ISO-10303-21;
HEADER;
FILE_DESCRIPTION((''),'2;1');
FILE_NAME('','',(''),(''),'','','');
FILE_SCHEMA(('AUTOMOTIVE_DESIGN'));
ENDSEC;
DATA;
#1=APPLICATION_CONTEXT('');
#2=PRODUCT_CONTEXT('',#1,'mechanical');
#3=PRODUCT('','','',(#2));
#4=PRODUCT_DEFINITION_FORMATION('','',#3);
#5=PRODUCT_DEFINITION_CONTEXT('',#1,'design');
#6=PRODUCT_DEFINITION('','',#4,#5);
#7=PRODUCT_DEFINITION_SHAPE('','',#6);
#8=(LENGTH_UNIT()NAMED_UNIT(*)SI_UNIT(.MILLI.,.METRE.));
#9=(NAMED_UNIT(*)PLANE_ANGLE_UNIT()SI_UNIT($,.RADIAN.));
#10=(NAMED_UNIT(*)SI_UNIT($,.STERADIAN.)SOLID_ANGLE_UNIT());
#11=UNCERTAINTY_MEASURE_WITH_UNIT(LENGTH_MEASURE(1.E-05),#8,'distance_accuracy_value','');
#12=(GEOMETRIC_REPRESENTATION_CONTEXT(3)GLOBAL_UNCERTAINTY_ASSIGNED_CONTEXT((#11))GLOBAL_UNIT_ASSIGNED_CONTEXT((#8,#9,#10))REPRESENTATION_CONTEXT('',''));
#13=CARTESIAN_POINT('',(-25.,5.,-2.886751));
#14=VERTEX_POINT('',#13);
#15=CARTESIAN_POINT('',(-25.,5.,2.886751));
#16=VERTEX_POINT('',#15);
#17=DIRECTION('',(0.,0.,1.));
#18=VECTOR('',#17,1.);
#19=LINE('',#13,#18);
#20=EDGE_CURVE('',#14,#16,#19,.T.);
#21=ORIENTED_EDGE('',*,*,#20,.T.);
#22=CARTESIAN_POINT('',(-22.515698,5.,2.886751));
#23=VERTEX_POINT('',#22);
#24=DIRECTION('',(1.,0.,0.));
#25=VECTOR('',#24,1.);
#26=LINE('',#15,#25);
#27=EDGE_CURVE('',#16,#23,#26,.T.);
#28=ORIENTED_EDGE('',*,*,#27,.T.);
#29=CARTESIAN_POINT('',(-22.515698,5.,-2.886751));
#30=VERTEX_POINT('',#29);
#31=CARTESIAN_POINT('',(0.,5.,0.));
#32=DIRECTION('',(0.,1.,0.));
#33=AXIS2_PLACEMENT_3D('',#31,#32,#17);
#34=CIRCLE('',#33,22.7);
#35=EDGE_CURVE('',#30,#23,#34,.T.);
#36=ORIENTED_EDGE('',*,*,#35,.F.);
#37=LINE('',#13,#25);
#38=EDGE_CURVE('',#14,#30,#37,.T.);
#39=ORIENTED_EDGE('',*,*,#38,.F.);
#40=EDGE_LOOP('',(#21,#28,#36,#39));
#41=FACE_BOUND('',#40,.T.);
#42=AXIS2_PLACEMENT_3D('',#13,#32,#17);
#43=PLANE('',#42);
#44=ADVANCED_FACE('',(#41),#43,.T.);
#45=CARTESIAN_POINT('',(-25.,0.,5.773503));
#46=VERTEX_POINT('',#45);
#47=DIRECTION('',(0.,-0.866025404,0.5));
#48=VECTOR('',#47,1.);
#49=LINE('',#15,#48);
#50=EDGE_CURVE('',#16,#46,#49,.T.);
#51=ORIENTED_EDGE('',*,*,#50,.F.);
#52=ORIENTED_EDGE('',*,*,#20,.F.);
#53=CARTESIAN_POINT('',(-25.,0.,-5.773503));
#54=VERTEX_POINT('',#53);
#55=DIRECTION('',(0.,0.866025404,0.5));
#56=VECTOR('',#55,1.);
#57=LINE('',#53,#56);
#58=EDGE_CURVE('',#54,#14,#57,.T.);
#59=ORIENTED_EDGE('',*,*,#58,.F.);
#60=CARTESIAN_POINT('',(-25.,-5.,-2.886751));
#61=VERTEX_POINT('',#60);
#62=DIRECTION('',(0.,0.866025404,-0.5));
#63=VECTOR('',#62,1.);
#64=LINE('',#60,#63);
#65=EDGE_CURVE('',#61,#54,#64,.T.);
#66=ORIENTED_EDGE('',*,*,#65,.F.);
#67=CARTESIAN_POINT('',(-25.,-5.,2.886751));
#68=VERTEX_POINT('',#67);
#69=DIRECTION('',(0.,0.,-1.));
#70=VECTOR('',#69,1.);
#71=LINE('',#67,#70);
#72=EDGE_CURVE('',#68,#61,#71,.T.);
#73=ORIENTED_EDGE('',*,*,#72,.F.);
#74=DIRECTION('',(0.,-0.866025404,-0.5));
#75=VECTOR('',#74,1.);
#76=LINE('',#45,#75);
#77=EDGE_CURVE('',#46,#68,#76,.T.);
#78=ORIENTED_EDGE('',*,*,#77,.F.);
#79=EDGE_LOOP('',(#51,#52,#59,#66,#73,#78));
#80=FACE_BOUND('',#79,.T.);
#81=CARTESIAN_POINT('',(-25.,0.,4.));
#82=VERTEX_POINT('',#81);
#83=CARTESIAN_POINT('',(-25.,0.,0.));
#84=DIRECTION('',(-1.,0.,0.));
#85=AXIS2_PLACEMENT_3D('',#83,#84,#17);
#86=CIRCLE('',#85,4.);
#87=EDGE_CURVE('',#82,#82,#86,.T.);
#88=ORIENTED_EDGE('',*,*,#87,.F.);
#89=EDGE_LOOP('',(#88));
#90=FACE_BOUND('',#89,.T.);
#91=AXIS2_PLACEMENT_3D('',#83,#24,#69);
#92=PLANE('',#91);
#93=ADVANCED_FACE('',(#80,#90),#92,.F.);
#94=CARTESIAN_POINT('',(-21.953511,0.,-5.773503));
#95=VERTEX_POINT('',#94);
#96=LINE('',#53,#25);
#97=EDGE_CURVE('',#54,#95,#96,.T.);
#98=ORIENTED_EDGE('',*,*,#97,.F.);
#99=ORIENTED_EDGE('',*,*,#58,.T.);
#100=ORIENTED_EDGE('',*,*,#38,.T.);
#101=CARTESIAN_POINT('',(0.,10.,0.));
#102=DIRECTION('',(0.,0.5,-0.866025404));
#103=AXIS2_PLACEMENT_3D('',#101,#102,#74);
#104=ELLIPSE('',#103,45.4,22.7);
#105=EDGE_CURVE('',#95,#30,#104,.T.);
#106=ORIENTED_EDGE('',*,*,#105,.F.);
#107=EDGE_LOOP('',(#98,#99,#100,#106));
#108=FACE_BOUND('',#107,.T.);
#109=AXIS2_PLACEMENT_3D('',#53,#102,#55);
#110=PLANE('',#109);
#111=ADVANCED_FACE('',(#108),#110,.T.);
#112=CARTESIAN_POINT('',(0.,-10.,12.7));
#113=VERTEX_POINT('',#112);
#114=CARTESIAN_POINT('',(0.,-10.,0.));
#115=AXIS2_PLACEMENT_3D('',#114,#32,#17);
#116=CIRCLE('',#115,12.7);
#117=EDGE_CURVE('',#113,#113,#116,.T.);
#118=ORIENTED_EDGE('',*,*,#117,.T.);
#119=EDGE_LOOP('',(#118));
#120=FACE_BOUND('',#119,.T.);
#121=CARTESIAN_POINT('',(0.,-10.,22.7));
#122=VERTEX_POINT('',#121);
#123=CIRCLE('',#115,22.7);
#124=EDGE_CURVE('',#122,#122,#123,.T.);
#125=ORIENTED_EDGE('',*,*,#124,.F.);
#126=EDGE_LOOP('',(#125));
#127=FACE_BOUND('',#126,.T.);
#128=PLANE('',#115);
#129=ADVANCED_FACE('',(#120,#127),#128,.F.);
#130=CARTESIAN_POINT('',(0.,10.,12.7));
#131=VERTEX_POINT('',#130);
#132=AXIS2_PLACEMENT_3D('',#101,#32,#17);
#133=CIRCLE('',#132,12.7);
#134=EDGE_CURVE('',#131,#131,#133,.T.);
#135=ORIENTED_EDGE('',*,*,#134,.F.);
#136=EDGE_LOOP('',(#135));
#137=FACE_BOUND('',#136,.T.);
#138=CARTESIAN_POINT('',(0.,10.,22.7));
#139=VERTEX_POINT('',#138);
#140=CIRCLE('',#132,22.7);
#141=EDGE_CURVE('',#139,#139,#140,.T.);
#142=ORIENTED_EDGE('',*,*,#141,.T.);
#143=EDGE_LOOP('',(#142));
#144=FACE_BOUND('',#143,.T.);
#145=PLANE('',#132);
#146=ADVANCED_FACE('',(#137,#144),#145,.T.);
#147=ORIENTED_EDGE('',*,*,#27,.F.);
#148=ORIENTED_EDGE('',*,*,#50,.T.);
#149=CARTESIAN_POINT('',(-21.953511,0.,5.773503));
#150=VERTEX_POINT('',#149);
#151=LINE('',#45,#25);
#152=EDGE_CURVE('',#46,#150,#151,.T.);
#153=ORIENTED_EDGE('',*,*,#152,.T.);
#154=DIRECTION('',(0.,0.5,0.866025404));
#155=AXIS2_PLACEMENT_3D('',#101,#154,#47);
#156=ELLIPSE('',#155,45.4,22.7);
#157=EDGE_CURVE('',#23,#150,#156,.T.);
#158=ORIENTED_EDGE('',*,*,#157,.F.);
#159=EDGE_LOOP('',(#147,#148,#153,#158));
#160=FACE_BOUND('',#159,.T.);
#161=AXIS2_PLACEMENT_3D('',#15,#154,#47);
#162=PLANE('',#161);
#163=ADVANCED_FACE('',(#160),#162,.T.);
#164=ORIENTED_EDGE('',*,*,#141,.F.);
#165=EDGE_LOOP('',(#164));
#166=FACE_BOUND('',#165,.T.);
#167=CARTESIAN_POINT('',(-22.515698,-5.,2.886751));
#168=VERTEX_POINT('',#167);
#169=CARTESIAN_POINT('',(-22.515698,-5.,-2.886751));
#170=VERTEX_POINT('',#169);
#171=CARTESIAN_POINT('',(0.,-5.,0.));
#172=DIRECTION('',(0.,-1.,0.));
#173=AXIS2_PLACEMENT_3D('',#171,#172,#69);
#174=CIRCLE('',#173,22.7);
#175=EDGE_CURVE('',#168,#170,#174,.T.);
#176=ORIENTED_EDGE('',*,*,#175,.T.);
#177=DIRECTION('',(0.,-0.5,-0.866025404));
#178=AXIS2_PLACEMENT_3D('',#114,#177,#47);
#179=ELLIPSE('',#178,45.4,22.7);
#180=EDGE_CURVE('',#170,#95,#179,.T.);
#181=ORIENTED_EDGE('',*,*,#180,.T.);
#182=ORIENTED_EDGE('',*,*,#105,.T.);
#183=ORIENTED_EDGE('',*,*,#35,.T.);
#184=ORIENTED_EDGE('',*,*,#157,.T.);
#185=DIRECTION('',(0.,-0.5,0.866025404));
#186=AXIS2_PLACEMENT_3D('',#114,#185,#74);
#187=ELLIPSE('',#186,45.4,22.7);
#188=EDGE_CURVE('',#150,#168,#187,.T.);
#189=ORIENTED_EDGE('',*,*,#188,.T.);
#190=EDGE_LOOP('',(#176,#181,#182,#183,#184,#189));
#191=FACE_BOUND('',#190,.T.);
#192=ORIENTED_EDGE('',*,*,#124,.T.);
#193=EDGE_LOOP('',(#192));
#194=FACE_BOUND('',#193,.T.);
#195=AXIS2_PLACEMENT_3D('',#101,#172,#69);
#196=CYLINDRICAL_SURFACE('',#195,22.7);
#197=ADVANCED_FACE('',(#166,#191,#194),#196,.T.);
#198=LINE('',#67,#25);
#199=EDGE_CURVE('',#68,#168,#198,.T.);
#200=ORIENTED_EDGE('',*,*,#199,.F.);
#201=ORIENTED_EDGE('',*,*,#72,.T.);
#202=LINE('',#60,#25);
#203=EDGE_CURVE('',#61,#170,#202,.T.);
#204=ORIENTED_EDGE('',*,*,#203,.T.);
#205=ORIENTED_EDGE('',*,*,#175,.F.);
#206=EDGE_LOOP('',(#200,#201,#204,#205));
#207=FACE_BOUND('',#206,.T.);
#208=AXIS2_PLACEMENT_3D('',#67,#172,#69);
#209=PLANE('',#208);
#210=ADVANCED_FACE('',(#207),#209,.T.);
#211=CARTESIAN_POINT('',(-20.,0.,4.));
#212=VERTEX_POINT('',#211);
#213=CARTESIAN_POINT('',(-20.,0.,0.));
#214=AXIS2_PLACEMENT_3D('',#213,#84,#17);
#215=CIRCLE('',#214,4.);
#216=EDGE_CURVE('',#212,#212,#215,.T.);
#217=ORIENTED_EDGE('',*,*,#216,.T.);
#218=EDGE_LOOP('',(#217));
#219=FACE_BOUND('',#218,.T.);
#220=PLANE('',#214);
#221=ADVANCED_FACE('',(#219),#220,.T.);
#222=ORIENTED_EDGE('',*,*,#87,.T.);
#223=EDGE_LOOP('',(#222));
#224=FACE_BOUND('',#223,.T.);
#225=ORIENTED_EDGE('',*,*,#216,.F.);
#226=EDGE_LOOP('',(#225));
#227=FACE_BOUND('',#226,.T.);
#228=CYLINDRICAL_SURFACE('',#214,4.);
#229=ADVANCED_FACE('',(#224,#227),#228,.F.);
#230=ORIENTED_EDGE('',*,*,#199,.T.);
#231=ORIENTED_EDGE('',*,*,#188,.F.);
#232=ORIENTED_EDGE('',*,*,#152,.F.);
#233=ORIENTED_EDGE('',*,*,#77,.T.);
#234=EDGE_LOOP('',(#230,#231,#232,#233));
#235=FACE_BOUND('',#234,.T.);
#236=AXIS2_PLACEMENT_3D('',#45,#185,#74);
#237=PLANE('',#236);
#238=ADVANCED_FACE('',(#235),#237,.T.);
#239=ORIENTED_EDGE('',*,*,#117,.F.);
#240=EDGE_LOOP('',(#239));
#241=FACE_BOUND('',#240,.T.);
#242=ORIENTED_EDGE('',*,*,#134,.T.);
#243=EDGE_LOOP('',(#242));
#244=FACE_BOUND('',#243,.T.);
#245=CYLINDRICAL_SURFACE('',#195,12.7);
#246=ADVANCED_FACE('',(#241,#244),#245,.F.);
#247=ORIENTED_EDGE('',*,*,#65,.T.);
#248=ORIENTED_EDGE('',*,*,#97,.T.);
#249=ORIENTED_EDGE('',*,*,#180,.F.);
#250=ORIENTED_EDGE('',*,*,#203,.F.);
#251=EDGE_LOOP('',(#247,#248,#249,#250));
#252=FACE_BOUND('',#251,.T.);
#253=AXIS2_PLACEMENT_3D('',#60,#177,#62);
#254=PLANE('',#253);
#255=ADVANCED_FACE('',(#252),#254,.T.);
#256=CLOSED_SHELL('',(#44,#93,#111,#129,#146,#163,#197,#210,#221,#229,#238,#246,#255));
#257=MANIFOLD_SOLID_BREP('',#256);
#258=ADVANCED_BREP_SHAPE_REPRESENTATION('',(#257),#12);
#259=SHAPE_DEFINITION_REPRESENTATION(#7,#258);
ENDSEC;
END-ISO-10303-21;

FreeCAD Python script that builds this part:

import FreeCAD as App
import Part
import Sketcher
Q = App.Units.Quantity


def add_polygon(sketch, points):
    """Adds a closed chain of lines whose ends are joined by coincident constraints."""
    first, n = sketch.GeometryCount, len(points)
    for a, b in zip(points, points[1:] + points[:1]):
        sketch.addGeometry(Part.LineSegment(App.Vector(*a, 0), App.Vector(*b, 0)), False)
    for i in range(n):
        sketch.addConstraint(Sketcher.Constraint("Coincident", first + i, 2, first + (i + 1) % n, 1))

doc = App.newDocument("Part")
body = doc.addObject("PartDesign::Body", "Body")

sketch1 = doc.addObject("Sketcher::SketchObject", "Sketch")
body.addObject(sketch1)
sketch1.AttachmentSupport = (doc.XZ_Plane, [""])
sketch1.MapMode = "FlatFace"
sketch1.addGeometry(Part.Circle(App.Vector(0, 0, 0), App.Vector(0, 0, 1), 23), False)
sketch1.addGeometry(Part.Circle(App.Vector(0, 0, 0), App.Vector(0, 0, 1), 13), False)
sketch1.addConstraint(Sketcher.Constraint("Coincident", 0, 3, -1, 1))
sketch1.addConstraint(Sketcher.Constraint("Coincident", 1, 3, -1, 1))
sketch1.addConstraint(Sketcher.Constraint("Diameter", 0, Q("45.4 mm")))
sketch1.addConstraint(Sketcher.Constraint("Diameter", 1, Q("25.4 mm")))
pad1 = doc.addObject("PartDesign::Pad", "Pad")
body.addObject(pad1)
pad1.Profile = sketch1
pad1.Length = 20
pad1.Midplane = True

sketch2 = doc.addObject("Sketcher::SketchObject", "Sketch001")
body.addObject(sketch2)
sketch2.AttachmentSupport = (doc.YZ_Plane, [""])
sketch2.MapMode = "FlatFace"
sketch2.AttachmentOffset = App.Placement(App.Vector(0, 0, -20), App.Rotation())
add_polygon(sketch2, [(0, -6), (5, -3), (5, 3), (0, 6), (-5, 3), (-5, -3)])
sketch2.addConstraint(Sketcher.Constraint("Vertical", 1))
sketch2.addConstraint(Sketcher.Constraint("Vertical", 4))
sketch2.addConstraint(Sketcher.Constraint("Symmetric", 0, 2, 3, 2, -1, 1))
sketch2.addConstraint(Sketcher.Constraint("Symmetric", 2, 2, 5, 2, -1, 1))
sketch2.addConstraint(Sketcher.Constraint("PointOnObject", 2, 2, -2))
sketch2.addConstraint(Sketcher.Constraint("Parallel", 2, 5))
sketch2.addConstraint(Sketcher.Constraint("Horizontal", 1, 2, 3, 2))
sketch2.addConstraint(Sketcher.Constraint("Angle", 0, Q("30 deg")))
sketch2.addConstraint(Sketcher.Constraint("DistanceX", -1, 1, 0, 2, Q("5 mm")))
sketch2.addConstraint(Sketcher.Constraint("DistanceY", 1, 1, 1, 2, Q("5.773503 mm")))
pad2 = doc.addObject("PartDesign::Pad", "Pad001")
body.addObject(pad2)
pad2.Profile = sketch2
pad2.Length = 5
pad2.Reversed = True

sketch3 = doc.addObject("Sketcher::SketchObject", "Sketch002")
body.addObject(sketch3)
sketch3.AttachmentSupport = (doc.YZ_Plane, [""])
sketch3.MapMode = "FlatFace"
sketch3.AttachmentOffset = App.Placement(App.Vector(0, 0, -25), App.Rotation())
sketch3.addGeometry(Part.Circle(App.Vector(0, 0, 0), App.Vector(0, 0, 1), 4), False)
sketch3.addConstraint(Sketcher.Constraint("Coincident", 0, 3, -1, 1))
sketch3.addConstraint(Sketcher.Constraint("Diameter", 0, Q("8 mm")))
pocket1 = doc.addObject("PartDesign::Pocket", "Pocket")
body.addObject(pocket1)
pocket1.Profile = sketch3
pocket1.Length = 5
pocket1.Reversed = True

doc.recompute()
